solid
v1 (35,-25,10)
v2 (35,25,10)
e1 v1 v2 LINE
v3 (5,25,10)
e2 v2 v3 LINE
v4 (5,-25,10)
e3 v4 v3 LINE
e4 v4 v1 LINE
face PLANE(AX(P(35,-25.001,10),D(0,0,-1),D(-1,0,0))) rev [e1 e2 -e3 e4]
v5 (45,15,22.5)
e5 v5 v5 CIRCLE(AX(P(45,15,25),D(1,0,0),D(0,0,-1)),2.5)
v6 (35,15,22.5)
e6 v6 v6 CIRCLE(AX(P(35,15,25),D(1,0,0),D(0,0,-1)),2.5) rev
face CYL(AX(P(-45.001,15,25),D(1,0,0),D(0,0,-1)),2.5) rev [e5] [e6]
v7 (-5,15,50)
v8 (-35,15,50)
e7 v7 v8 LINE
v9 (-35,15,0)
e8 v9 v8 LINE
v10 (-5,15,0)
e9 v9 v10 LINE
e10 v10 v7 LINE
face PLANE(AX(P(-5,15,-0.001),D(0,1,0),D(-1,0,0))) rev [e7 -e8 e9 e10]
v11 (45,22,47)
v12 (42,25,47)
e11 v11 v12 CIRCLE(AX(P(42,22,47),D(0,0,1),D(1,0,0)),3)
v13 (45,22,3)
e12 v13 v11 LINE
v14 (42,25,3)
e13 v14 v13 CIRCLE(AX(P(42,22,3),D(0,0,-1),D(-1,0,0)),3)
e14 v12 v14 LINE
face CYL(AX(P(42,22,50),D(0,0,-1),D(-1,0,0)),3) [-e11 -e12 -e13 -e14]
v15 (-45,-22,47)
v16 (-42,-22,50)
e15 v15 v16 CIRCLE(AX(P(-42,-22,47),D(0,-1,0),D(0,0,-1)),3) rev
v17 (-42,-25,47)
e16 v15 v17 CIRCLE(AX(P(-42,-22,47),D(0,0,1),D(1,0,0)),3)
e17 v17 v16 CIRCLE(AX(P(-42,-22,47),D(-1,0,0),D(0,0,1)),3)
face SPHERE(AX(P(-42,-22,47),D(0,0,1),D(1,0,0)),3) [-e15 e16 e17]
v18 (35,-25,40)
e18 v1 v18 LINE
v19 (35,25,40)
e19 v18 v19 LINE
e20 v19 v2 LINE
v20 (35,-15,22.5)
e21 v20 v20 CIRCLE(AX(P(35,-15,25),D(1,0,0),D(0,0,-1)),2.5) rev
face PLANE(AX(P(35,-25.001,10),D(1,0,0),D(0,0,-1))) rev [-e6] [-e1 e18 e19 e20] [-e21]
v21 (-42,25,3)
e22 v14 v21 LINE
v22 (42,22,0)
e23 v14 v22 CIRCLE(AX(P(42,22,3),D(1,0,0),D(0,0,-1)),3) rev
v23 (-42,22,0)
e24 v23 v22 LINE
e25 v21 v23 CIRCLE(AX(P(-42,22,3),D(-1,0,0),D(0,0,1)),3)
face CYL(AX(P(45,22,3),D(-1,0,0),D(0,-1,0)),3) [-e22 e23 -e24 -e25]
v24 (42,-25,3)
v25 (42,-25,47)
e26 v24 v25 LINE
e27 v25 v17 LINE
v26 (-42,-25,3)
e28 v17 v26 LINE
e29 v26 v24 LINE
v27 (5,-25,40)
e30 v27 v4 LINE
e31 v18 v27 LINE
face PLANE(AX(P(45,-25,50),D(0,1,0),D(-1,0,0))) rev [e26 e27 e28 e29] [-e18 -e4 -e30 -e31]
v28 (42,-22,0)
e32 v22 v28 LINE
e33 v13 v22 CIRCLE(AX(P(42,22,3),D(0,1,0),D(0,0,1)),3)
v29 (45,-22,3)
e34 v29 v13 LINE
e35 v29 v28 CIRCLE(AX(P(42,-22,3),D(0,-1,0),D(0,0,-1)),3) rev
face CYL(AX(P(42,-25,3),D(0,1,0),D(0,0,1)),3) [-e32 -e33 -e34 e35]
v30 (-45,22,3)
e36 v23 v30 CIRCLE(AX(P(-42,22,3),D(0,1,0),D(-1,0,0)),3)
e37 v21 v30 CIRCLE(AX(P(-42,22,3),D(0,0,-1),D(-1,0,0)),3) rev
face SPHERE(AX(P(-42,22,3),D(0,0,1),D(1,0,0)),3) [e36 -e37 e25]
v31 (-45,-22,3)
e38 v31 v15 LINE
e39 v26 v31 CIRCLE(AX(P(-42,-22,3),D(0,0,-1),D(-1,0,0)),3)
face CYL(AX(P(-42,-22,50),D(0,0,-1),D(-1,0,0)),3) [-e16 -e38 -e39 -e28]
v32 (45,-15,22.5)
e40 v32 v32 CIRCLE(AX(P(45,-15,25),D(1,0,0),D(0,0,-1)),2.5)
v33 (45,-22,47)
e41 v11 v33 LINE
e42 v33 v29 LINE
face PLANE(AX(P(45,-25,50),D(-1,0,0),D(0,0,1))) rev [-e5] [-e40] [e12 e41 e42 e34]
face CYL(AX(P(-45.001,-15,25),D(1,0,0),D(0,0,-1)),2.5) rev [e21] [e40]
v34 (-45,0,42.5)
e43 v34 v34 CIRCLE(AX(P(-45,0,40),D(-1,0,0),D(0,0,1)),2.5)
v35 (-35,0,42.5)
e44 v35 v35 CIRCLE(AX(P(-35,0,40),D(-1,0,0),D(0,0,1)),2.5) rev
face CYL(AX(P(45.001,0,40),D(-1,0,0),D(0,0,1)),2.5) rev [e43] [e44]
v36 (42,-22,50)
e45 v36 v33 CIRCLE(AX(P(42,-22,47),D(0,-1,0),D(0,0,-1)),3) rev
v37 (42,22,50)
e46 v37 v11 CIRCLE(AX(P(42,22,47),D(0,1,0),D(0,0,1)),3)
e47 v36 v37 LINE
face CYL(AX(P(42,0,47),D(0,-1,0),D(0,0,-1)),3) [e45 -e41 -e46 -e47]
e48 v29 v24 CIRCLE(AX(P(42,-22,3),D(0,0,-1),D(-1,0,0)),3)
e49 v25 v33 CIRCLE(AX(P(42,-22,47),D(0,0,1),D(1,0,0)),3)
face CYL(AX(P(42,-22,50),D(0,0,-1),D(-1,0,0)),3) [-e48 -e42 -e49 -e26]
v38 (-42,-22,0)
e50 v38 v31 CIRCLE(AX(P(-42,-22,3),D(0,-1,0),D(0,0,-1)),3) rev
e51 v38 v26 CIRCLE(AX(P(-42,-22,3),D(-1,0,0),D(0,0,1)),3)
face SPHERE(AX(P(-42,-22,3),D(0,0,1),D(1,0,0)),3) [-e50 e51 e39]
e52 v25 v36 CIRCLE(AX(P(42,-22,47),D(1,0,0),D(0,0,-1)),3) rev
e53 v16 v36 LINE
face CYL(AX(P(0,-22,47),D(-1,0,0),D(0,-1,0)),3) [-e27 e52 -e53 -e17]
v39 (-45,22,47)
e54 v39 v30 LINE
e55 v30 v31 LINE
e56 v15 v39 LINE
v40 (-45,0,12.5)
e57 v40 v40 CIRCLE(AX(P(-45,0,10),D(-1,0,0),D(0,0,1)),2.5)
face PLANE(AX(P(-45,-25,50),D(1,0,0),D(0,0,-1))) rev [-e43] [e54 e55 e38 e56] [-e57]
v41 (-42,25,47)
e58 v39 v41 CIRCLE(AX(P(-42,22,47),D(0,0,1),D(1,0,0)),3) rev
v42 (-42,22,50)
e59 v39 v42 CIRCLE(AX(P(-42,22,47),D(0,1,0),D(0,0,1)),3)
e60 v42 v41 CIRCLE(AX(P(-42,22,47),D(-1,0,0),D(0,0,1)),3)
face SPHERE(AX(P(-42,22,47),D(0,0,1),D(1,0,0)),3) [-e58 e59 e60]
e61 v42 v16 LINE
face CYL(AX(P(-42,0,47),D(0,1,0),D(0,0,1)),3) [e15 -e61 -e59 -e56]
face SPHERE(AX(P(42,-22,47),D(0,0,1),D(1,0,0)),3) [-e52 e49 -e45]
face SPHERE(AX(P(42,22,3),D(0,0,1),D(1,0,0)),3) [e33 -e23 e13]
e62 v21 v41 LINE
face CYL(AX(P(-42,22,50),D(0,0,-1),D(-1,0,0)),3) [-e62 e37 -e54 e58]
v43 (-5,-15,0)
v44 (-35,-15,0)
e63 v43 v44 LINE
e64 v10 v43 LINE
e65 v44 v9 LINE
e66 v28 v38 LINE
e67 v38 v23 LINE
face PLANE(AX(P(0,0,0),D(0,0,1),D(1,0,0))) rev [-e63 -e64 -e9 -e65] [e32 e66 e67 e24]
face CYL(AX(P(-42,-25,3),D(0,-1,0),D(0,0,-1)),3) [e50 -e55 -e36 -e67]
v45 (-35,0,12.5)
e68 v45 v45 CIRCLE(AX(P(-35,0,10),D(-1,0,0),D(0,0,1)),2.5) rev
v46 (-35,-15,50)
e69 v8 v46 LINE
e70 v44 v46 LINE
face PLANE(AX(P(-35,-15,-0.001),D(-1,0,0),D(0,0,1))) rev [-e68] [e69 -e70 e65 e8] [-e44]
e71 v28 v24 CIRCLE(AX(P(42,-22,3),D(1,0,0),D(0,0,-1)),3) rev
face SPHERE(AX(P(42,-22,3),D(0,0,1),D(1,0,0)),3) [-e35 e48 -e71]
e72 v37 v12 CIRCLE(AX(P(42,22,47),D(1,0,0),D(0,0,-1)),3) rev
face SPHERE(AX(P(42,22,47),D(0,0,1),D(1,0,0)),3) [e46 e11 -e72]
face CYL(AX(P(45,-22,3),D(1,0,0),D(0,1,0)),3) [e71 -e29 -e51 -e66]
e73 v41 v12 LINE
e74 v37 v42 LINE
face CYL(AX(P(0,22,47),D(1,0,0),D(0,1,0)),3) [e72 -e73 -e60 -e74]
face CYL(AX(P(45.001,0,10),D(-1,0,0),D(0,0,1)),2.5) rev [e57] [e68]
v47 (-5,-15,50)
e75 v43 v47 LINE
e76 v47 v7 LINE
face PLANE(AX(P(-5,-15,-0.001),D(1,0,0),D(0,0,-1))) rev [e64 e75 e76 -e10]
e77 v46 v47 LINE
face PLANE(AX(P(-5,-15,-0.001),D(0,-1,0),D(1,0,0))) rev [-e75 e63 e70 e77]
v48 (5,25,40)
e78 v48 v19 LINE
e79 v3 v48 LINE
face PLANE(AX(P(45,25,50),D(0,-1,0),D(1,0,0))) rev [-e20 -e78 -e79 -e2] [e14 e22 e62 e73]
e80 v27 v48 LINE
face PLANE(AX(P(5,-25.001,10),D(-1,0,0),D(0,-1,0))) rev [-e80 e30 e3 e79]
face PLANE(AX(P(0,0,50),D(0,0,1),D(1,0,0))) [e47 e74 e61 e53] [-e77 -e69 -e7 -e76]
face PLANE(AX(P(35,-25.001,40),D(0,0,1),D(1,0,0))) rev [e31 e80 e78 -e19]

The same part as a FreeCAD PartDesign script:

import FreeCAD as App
import Part
import Sketcher
from FreeCAD import Vector
Q = App.Units.Quantity


def edges_at(feature, points):
    """Names of the edges that pass closest to the given points."""
    edges = feature.Shape.Edges
    near = lambda p: min(range(len(edges)), key=lambda i: edges[i].distToShape(Part.Vertex(*p))[0])
    return sorted({f"Edge{near(p) + 1}" for p in points})


def add_polygon(sketch, points):
    """Adds a closed chain of lines whose ends are joined by coincident constraints."""
    first, n = sketch.GeometryCount, len(points)
    for a, b in zip(points, points[1:] + points[:1]):
        sketch.addGeometry(Part.LineSegment(App.Vector(*a, 0), App.Vector(*b, 0)), False)
    for i in range(n):
        sketch.addConstraint(Sketcher.Constraint("Coincident", first + i, 2, first + (i + 1) % n, 1))

doc = App.newDocument("Part")
body = doc.addObject("PartDesign::Body", "Body")

# Sketch on XY plane
sketch1 = body.newObject("Sketcher::SketchObject", "Sketch")
sketch1.AttachmentSupport = (doc.getObject("XY_Plane"), [""])
sketch1.MapMode = "FlatFace"
add_polygon(sketch1, [(-45, 25), (-45, -25), (45, -25), (45, 25)])  # lines 0-3
sketch1.addConstraint([
    Sketcher.Constraint("Vertical", 0),
    Sketcher.Constraint("Horizontal", 1),
    Sketcher.Constraint("Vertical", 2),
    Sketcher.Constraint("Horizontal", 3),
    Sketcher.Constraint("Symmetric", 0, 2, 2, 2, -1, 1),
    Sketcher.Constraint("DistanceX", 1, 1, 1, 2, Q("90 mm")),
    Sketcher.Constraint("DistanceY", 0, 2, 0, 1, Q("50 mm")),
])
pad1 = body.newObject("PartDesign::Pad", "Pad")
pad1.Profile = sketch1
pad1.Length = 50

# Sketch on XY plane
sketch2 = body.newObject("Sketcher::SketchObject", "Sketch001")
sketch2.AttachmentSupport = (doc.getObject("XY_Plane"), [""])
sketch2.MapMode = "FlatFace"
sketch2.AttachmentOffset = App.Placement(Vector(0, 0, 50), App.Rotation())
add_polygon(sketch2, [(-35, 15), (-35, -15), (-5, -15), (-5, 15)])  # lines 0-3
sketch2.addConstraint([
    Sketcher.Constraint("Vertical", 0),
    Sketcher.Constraint("Horizontal", 1),
    Sketcher.Constraint("Vertical", 2),
    Sketcher.Constraint("Horizontal", 3),
    Sketcher.Constraint("Equal", 3, 0),
    Sketcher.Constraint("DistanceX", 1, 1, 1, 2, Q("30 mm")),
    Sketcher.Constraint("DistanceX", 0, 2, -1, 1, Q("35 mm")),
    Sketcher.Constraint("DistanceY", 0, 2, -1, 1, Q("15 mm")),
])
pocket1 = body.newObject("PartDesign::Pocket", "Pocket")
pocket1.Profile = sketch2
pocket1.Type = "UpToFirst"

# Sketch on XZ plane
sketch3 = body.newObject("Sketcher::SketchObject", "Sketch002")
sketch3.AttachmentSupport = (doc.getObject("XZ_Plane"), [""])
sketch3.MapMode = "FlatFace"
sketch3.AttachmentOffset = App.Placement(Vector(0, 0, -25), App.Rotation())
add_polygon(sketch3, [(5, 10), (5, 40), (35, 40), (35, 10)])  # lines 0-3
sketch3.addConstraint([
    Sketcher.Constraint("Vertical", 0),
    Sketcher.Constraint("Horizontal", 1),
    Sketcher.Constraint("Vertical", 2),
    Sketcher.Constraint("Horizontal", 3),
    Sketcher.Constraint("Equal", 3, 0),
    Sketcher.Constraint("DistanceX", 1, 1, 1, 2, Q("30 mm")),
    Sketcher.Constraint("DistanceX", -1, 1, 0, 2, Q("5 mm")),
    Sketcher.Constraint("DistanceY", -1, 1, 0, 2, Q("40 mm")),
])
pocket2 = body.newObject("PartDesign::Pocket", "Pocket001")
pocket2.Profile = sketch3
pocket2.Type = "UpToFirst"
pocket2.Reversed = True
doc.recompute()

fillet = body.newObject("PartDesign::Fillet", "Fillet")
fillet.Base = (pocket2, edges_at(pocket2, [
    (45, 0, 50),
    (0, 25, 50),
    (-45, 0, 50),
    (0, 25, 0),
    (45, 0, 0),
    (0, -25, 0),
    (-45, 0, 0),
    (-45, 25, 25),
    (45, 25, 25),
    (45, -25, 25),
    (-45, -25, 25),
    (0, -25, 50),
]))
fillet.Radius = 3

# Sketch on YZ plane
sketch4 = body.newObject("Sketcher::SketchObject", "Sketch003")
sketch4.AttachmentSupport = (doc.getObject("YZ_Plane"), [""])
sketch4.MapMode = "FlatFace"
sketch4.AttachmentOffset = App.Placement(Vector(0, 0, -45), App.Rotation())
sketch4.addGeometry(Part.Circle(Vector(0, 10, 0), Vector(0, 0, 1), 2.5), False)
sketch4.addConstraint([
    Sketcher.Constraint("PointOnObject", 0, 3, -2),
    Sketcher.Constraint("Diameter", 0, Q("5 mm")),
    Sketcher.Constraint("DistanceY", -1, 1, 0, 3, Q("10 mm")),
])
pocket3 = body.newObject("PartDesign::Pocket", "Pocket002")
pocket3.Profile = sketch4
pocket3.Type = "UpToFirst"
pocket3.Reversed = True

# Sketch on YZ plane
sketch5 = body.newObject("Sketcher::SketchObject", "Sketch004")
sketch5.AttachmentSupport = (doc.getObject("YZ_Plane"), [""])
sketch5.MapMode = "FlatFace"
sketch5.AttachmentOffset = App.Placement(Vector(0, 0, -45), App.Rotation())
sketch5.addGeometry(Part.Circle(Vector(0, 40, 0), Vector(0, 0, 1), 2.5), False)
sketch5.addConstraint([
    Sketcher.Constraint("PointOnObject", 0, 3, -2),
    Sketcher.Constraint("Diameter", 0, Q("5 mm")),
    Sketcher.Constraint("DistanceY", -1, 1, 0, 3, Q("40 mm")),
])
pocket4 = body.newObject("PartDesign::Pocket", "Pocket003")
pocket4.Profile = sketch5
pocket4.Type = "UpToFirst"
pocket4.Reversed = True

# Sketch on YZ plane
sketch6 = body.newObject("Sketcher::SketchObject", "Sketch005")
sketch6.AttachmentSupport = (doc.getObject("YZ_Plane"), [""])
sketch6.MapMode = "FlatFace"
sketch6.AttachmentOffset = App.Placement(Vector(0, 0, 45), App.Rotation())
sketch6.addGeometry(Part.Circle(Vector(15, 25, 0), Vector(0, 0, 1), 2.5), False)
sketch6.addConstraint([
    Sketcher.Constraint("Diameter", 0, Q("5 mm")),
    Sketcher.Constraint("DistanceX", -1, 1, 0, 3, Q("15 mm")),
    Sketcher.Constraint("DistanceY", -1, 1, 0, 3, Q("25 mm")),
])
pocket5 = body.newObject("PartDesign::Pocket", "Pocket004")
pocket5.Profile = sketch6
pocket5.Type = "UpToFirst"

# Sketch on YZ plane
sketch7 = body.newObject("Sketcher::SketchObject", "Sketch006")
sketch7.AttachmentSupport = (doc.getObject("YZ_Plane"), [""])
sketch7.MapMode = "FlatFace"
sketch7.AttachmentOffset = App.Placement(Vector(0, 0, 45), App.Rotation())
sketch7.addGeometry(Part.Circle(Vector(-15, 25, 0), Vector(0, 0, 1), 2.5), False)
sketch7.addConstraint([
    Sketcher.Constraint("Diameter", 0, Q("5 mm")),
    Sketcher.Constraint("DistanceX", 0, 3, -1, 1, Q("15 mm")),
    Sketcher.Constraint("DistanceY", -1, 1, 0, 3, Q("25 mm")),
])
pocket6 = body.newObject("PartDesign::Pocket", "Pocket005")
pocket6.Profile = sketch7
pocket6.Type = "UpToFirst"

doc.recompute()
